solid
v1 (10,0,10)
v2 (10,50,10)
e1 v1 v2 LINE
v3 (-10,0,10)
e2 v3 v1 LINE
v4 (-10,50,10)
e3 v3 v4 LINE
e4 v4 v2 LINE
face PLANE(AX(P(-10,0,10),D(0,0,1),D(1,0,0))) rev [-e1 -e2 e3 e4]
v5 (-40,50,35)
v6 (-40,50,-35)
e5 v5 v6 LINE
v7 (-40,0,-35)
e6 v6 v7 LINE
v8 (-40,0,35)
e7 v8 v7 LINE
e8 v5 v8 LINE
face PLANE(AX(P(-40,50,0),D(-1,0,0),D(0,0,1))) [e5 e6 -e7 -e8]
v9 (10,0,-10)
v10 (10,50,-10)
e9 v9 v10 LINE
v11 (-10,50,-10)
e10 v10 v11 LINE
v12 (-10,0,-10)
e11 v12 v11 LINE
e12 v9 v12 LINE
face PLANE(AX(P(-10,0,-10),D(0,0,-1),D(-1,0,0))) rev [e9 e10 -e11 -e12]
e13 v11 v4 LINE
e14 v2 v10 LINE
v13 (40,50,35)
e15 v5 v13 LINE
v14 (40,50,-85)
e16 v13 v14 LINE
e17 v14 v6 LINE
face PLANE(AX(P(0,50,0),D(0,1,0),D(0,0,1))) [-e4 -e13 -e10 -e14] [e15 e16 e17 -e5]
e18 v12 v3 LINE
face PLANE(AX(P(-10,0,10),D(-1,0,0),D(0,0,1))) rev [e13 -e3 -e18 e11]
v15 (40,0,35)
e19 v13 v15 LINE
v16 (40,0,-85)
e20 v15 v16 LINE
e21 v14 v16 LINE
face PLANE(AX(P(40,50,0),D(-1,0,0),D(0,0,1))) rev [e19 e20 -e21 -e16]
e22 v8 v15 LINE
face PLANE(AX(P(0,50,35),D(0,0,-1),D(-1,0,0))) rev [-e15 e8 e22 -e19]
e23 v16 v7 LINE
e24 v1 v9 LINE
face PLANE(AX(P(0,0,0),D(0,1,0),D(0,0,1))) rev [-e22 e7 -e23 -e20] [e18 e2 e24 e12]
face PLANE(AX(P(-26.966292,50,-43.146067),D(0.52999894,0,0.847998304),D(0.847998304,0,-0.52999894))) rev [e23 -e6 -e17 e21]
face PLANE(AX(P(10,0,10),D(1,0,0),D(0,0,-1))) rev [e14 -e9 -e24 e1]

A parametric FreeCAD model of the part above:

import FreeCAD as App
import Part
import Sketcher

doc = App.newDocument("Part")
body = doc.addObject("PartDesign::Body", "Body")

# Sketch on XZ plane
sketch1 = body.newObject("Sketcher::SketchObject", "Sketch")
sketch1.AttachmentSupport = (doc.getObject("XZ_Plane"), [""])
sketch1.MapMode = "FlatFace"
sketch1.addGeometry(Part.LineSegment(App.Vector(-40, -35, 0), App.Vector(-40, 35, 0)), False)
sketch1.addGeometry(Part.LineSegment(App.Vector(-40, 35, 0), App.Vector(40, 35, 0)), False)
sketch1.addGeometry(Part.LineSegment(App.Vector(40, 35, 0), App.Vector(40, -85, 0)), False)
sketch1.addGeometry(Part.LineSegment(App.Vector(40, -85, 0), App.Vector(-40, -35, 0)), False)
sketch1.addConstraint(Sketcher.Constraint("Coincident", 0, 2, 1, 1))
sketch1.addConstraint(Sketcher.Constraint("Coincident", 1, 2, 2, 1))
sketch1.addConstraint(Sketcher.Constraint("Coincident", 2, 2, 3, 1))
sketch1.addConstraint(Sketcher.Constraint("Coincident", 3, 2, 0, 1))
sketch1.addConstraint(Sketcher.Constraint("Vertical", 0))
sketch1.addConstraint(Sketcher.Constraint("Horizontal", 1))
sketch1.addConstraint(Sketcher.Constraint("Vertical", 2))
sketch1.addConstraint(Sketcher.Constraint("Symmetric", 1, 2, 3, 2, -1, 1))
sketch1.addConstraint(Sketcher.Constraint("DistanceX", 1, 1, 1, 2, 80.0))
sketch1.addConstraint(Sketcher.Constraint("DistanceY", 0, 1, 0, 2, 70.0))
sketch1.addConstraint(Sketcher.Constraint("DistanceY", 2, 2, 2, 1, 120.0))
pad1 = body.newObject("PartDesign::Pad", "Pad")
pad1.Profile = sketch1
pad1.Length = 50
pad1.Reversed = True

# Sketch on XZ plane
sketch2 = body.newObject("Sketcher::SketchObject", "Sketch001")
sketch2.AttachmentSupport = (doc.getObject("XZ_Plane"), [""])
sketch2.MapMode = "FlatFace"
sketch2.AttachmentOffset = App.Placement(App.Vector(0, 0, -50), App.Rotation())
sketch2.addGeometry(Part.LineSegment(App.Vector(-10, -10, 0), App.Vector(-10, 10, 0)), False)
sketch2.addGeometry(Part.LineSegment(App.Vector(-10, 10, 0), App.Vector(10, 10, 0)), False)
sketch2.addGeometry(Part.LineSegment(App.Vector(10, 10, 0), App.Vector(10, -10, 0)), False)
sketch2.addGeometry(Part.LineSegment(App.Vector(10, -10, 0), App.Vector(-10, -10, 0)), False)
sketch2.addConstraint(Sketcher.Constraint("Coincident", 0, 2, 1, 1))
sketch2.addConstraint(Sketcher.Constraint("Coincident", 1, 2, 2, 1))
sketch2.addConstraint(Sketcher.Constraint("Coincident", 2, 2, 3, 1))
sketch2.addConstraint(Sketcher.Constraint("Coincident", 3, 2, 0, 1))
sketch2.addConstraint(Sketcher.Constraint("Vertical", 0))
sketch2.addConstraint(Sketcher.Constraint("Horizontal", 1))
sketch2.addConstraint(Sketcher.Constraint("Vertical", 2))
sketch2.addConstraint(Sketcher.Constraint("Horizontal", 3))
sketch2.addConstraint(Sketcher.Constraint("Symmetric", 0, 2, 2, 2, -1, 1))
sketch2.addConstraint(Sketcher.Constraint("Equal", 3, 0))
sketch2.addConstraint(Sketcher.Constraint("DistanceX", 1, 1, 1, 2, 20.0))
pocket1 = body.newObject("PartDesign::Pocket", "Pocket")
pocket1.Profile = sketch2
pocket1.Type = "ThroughAll"
pocket1.Reversed = True

doc.recompute()
